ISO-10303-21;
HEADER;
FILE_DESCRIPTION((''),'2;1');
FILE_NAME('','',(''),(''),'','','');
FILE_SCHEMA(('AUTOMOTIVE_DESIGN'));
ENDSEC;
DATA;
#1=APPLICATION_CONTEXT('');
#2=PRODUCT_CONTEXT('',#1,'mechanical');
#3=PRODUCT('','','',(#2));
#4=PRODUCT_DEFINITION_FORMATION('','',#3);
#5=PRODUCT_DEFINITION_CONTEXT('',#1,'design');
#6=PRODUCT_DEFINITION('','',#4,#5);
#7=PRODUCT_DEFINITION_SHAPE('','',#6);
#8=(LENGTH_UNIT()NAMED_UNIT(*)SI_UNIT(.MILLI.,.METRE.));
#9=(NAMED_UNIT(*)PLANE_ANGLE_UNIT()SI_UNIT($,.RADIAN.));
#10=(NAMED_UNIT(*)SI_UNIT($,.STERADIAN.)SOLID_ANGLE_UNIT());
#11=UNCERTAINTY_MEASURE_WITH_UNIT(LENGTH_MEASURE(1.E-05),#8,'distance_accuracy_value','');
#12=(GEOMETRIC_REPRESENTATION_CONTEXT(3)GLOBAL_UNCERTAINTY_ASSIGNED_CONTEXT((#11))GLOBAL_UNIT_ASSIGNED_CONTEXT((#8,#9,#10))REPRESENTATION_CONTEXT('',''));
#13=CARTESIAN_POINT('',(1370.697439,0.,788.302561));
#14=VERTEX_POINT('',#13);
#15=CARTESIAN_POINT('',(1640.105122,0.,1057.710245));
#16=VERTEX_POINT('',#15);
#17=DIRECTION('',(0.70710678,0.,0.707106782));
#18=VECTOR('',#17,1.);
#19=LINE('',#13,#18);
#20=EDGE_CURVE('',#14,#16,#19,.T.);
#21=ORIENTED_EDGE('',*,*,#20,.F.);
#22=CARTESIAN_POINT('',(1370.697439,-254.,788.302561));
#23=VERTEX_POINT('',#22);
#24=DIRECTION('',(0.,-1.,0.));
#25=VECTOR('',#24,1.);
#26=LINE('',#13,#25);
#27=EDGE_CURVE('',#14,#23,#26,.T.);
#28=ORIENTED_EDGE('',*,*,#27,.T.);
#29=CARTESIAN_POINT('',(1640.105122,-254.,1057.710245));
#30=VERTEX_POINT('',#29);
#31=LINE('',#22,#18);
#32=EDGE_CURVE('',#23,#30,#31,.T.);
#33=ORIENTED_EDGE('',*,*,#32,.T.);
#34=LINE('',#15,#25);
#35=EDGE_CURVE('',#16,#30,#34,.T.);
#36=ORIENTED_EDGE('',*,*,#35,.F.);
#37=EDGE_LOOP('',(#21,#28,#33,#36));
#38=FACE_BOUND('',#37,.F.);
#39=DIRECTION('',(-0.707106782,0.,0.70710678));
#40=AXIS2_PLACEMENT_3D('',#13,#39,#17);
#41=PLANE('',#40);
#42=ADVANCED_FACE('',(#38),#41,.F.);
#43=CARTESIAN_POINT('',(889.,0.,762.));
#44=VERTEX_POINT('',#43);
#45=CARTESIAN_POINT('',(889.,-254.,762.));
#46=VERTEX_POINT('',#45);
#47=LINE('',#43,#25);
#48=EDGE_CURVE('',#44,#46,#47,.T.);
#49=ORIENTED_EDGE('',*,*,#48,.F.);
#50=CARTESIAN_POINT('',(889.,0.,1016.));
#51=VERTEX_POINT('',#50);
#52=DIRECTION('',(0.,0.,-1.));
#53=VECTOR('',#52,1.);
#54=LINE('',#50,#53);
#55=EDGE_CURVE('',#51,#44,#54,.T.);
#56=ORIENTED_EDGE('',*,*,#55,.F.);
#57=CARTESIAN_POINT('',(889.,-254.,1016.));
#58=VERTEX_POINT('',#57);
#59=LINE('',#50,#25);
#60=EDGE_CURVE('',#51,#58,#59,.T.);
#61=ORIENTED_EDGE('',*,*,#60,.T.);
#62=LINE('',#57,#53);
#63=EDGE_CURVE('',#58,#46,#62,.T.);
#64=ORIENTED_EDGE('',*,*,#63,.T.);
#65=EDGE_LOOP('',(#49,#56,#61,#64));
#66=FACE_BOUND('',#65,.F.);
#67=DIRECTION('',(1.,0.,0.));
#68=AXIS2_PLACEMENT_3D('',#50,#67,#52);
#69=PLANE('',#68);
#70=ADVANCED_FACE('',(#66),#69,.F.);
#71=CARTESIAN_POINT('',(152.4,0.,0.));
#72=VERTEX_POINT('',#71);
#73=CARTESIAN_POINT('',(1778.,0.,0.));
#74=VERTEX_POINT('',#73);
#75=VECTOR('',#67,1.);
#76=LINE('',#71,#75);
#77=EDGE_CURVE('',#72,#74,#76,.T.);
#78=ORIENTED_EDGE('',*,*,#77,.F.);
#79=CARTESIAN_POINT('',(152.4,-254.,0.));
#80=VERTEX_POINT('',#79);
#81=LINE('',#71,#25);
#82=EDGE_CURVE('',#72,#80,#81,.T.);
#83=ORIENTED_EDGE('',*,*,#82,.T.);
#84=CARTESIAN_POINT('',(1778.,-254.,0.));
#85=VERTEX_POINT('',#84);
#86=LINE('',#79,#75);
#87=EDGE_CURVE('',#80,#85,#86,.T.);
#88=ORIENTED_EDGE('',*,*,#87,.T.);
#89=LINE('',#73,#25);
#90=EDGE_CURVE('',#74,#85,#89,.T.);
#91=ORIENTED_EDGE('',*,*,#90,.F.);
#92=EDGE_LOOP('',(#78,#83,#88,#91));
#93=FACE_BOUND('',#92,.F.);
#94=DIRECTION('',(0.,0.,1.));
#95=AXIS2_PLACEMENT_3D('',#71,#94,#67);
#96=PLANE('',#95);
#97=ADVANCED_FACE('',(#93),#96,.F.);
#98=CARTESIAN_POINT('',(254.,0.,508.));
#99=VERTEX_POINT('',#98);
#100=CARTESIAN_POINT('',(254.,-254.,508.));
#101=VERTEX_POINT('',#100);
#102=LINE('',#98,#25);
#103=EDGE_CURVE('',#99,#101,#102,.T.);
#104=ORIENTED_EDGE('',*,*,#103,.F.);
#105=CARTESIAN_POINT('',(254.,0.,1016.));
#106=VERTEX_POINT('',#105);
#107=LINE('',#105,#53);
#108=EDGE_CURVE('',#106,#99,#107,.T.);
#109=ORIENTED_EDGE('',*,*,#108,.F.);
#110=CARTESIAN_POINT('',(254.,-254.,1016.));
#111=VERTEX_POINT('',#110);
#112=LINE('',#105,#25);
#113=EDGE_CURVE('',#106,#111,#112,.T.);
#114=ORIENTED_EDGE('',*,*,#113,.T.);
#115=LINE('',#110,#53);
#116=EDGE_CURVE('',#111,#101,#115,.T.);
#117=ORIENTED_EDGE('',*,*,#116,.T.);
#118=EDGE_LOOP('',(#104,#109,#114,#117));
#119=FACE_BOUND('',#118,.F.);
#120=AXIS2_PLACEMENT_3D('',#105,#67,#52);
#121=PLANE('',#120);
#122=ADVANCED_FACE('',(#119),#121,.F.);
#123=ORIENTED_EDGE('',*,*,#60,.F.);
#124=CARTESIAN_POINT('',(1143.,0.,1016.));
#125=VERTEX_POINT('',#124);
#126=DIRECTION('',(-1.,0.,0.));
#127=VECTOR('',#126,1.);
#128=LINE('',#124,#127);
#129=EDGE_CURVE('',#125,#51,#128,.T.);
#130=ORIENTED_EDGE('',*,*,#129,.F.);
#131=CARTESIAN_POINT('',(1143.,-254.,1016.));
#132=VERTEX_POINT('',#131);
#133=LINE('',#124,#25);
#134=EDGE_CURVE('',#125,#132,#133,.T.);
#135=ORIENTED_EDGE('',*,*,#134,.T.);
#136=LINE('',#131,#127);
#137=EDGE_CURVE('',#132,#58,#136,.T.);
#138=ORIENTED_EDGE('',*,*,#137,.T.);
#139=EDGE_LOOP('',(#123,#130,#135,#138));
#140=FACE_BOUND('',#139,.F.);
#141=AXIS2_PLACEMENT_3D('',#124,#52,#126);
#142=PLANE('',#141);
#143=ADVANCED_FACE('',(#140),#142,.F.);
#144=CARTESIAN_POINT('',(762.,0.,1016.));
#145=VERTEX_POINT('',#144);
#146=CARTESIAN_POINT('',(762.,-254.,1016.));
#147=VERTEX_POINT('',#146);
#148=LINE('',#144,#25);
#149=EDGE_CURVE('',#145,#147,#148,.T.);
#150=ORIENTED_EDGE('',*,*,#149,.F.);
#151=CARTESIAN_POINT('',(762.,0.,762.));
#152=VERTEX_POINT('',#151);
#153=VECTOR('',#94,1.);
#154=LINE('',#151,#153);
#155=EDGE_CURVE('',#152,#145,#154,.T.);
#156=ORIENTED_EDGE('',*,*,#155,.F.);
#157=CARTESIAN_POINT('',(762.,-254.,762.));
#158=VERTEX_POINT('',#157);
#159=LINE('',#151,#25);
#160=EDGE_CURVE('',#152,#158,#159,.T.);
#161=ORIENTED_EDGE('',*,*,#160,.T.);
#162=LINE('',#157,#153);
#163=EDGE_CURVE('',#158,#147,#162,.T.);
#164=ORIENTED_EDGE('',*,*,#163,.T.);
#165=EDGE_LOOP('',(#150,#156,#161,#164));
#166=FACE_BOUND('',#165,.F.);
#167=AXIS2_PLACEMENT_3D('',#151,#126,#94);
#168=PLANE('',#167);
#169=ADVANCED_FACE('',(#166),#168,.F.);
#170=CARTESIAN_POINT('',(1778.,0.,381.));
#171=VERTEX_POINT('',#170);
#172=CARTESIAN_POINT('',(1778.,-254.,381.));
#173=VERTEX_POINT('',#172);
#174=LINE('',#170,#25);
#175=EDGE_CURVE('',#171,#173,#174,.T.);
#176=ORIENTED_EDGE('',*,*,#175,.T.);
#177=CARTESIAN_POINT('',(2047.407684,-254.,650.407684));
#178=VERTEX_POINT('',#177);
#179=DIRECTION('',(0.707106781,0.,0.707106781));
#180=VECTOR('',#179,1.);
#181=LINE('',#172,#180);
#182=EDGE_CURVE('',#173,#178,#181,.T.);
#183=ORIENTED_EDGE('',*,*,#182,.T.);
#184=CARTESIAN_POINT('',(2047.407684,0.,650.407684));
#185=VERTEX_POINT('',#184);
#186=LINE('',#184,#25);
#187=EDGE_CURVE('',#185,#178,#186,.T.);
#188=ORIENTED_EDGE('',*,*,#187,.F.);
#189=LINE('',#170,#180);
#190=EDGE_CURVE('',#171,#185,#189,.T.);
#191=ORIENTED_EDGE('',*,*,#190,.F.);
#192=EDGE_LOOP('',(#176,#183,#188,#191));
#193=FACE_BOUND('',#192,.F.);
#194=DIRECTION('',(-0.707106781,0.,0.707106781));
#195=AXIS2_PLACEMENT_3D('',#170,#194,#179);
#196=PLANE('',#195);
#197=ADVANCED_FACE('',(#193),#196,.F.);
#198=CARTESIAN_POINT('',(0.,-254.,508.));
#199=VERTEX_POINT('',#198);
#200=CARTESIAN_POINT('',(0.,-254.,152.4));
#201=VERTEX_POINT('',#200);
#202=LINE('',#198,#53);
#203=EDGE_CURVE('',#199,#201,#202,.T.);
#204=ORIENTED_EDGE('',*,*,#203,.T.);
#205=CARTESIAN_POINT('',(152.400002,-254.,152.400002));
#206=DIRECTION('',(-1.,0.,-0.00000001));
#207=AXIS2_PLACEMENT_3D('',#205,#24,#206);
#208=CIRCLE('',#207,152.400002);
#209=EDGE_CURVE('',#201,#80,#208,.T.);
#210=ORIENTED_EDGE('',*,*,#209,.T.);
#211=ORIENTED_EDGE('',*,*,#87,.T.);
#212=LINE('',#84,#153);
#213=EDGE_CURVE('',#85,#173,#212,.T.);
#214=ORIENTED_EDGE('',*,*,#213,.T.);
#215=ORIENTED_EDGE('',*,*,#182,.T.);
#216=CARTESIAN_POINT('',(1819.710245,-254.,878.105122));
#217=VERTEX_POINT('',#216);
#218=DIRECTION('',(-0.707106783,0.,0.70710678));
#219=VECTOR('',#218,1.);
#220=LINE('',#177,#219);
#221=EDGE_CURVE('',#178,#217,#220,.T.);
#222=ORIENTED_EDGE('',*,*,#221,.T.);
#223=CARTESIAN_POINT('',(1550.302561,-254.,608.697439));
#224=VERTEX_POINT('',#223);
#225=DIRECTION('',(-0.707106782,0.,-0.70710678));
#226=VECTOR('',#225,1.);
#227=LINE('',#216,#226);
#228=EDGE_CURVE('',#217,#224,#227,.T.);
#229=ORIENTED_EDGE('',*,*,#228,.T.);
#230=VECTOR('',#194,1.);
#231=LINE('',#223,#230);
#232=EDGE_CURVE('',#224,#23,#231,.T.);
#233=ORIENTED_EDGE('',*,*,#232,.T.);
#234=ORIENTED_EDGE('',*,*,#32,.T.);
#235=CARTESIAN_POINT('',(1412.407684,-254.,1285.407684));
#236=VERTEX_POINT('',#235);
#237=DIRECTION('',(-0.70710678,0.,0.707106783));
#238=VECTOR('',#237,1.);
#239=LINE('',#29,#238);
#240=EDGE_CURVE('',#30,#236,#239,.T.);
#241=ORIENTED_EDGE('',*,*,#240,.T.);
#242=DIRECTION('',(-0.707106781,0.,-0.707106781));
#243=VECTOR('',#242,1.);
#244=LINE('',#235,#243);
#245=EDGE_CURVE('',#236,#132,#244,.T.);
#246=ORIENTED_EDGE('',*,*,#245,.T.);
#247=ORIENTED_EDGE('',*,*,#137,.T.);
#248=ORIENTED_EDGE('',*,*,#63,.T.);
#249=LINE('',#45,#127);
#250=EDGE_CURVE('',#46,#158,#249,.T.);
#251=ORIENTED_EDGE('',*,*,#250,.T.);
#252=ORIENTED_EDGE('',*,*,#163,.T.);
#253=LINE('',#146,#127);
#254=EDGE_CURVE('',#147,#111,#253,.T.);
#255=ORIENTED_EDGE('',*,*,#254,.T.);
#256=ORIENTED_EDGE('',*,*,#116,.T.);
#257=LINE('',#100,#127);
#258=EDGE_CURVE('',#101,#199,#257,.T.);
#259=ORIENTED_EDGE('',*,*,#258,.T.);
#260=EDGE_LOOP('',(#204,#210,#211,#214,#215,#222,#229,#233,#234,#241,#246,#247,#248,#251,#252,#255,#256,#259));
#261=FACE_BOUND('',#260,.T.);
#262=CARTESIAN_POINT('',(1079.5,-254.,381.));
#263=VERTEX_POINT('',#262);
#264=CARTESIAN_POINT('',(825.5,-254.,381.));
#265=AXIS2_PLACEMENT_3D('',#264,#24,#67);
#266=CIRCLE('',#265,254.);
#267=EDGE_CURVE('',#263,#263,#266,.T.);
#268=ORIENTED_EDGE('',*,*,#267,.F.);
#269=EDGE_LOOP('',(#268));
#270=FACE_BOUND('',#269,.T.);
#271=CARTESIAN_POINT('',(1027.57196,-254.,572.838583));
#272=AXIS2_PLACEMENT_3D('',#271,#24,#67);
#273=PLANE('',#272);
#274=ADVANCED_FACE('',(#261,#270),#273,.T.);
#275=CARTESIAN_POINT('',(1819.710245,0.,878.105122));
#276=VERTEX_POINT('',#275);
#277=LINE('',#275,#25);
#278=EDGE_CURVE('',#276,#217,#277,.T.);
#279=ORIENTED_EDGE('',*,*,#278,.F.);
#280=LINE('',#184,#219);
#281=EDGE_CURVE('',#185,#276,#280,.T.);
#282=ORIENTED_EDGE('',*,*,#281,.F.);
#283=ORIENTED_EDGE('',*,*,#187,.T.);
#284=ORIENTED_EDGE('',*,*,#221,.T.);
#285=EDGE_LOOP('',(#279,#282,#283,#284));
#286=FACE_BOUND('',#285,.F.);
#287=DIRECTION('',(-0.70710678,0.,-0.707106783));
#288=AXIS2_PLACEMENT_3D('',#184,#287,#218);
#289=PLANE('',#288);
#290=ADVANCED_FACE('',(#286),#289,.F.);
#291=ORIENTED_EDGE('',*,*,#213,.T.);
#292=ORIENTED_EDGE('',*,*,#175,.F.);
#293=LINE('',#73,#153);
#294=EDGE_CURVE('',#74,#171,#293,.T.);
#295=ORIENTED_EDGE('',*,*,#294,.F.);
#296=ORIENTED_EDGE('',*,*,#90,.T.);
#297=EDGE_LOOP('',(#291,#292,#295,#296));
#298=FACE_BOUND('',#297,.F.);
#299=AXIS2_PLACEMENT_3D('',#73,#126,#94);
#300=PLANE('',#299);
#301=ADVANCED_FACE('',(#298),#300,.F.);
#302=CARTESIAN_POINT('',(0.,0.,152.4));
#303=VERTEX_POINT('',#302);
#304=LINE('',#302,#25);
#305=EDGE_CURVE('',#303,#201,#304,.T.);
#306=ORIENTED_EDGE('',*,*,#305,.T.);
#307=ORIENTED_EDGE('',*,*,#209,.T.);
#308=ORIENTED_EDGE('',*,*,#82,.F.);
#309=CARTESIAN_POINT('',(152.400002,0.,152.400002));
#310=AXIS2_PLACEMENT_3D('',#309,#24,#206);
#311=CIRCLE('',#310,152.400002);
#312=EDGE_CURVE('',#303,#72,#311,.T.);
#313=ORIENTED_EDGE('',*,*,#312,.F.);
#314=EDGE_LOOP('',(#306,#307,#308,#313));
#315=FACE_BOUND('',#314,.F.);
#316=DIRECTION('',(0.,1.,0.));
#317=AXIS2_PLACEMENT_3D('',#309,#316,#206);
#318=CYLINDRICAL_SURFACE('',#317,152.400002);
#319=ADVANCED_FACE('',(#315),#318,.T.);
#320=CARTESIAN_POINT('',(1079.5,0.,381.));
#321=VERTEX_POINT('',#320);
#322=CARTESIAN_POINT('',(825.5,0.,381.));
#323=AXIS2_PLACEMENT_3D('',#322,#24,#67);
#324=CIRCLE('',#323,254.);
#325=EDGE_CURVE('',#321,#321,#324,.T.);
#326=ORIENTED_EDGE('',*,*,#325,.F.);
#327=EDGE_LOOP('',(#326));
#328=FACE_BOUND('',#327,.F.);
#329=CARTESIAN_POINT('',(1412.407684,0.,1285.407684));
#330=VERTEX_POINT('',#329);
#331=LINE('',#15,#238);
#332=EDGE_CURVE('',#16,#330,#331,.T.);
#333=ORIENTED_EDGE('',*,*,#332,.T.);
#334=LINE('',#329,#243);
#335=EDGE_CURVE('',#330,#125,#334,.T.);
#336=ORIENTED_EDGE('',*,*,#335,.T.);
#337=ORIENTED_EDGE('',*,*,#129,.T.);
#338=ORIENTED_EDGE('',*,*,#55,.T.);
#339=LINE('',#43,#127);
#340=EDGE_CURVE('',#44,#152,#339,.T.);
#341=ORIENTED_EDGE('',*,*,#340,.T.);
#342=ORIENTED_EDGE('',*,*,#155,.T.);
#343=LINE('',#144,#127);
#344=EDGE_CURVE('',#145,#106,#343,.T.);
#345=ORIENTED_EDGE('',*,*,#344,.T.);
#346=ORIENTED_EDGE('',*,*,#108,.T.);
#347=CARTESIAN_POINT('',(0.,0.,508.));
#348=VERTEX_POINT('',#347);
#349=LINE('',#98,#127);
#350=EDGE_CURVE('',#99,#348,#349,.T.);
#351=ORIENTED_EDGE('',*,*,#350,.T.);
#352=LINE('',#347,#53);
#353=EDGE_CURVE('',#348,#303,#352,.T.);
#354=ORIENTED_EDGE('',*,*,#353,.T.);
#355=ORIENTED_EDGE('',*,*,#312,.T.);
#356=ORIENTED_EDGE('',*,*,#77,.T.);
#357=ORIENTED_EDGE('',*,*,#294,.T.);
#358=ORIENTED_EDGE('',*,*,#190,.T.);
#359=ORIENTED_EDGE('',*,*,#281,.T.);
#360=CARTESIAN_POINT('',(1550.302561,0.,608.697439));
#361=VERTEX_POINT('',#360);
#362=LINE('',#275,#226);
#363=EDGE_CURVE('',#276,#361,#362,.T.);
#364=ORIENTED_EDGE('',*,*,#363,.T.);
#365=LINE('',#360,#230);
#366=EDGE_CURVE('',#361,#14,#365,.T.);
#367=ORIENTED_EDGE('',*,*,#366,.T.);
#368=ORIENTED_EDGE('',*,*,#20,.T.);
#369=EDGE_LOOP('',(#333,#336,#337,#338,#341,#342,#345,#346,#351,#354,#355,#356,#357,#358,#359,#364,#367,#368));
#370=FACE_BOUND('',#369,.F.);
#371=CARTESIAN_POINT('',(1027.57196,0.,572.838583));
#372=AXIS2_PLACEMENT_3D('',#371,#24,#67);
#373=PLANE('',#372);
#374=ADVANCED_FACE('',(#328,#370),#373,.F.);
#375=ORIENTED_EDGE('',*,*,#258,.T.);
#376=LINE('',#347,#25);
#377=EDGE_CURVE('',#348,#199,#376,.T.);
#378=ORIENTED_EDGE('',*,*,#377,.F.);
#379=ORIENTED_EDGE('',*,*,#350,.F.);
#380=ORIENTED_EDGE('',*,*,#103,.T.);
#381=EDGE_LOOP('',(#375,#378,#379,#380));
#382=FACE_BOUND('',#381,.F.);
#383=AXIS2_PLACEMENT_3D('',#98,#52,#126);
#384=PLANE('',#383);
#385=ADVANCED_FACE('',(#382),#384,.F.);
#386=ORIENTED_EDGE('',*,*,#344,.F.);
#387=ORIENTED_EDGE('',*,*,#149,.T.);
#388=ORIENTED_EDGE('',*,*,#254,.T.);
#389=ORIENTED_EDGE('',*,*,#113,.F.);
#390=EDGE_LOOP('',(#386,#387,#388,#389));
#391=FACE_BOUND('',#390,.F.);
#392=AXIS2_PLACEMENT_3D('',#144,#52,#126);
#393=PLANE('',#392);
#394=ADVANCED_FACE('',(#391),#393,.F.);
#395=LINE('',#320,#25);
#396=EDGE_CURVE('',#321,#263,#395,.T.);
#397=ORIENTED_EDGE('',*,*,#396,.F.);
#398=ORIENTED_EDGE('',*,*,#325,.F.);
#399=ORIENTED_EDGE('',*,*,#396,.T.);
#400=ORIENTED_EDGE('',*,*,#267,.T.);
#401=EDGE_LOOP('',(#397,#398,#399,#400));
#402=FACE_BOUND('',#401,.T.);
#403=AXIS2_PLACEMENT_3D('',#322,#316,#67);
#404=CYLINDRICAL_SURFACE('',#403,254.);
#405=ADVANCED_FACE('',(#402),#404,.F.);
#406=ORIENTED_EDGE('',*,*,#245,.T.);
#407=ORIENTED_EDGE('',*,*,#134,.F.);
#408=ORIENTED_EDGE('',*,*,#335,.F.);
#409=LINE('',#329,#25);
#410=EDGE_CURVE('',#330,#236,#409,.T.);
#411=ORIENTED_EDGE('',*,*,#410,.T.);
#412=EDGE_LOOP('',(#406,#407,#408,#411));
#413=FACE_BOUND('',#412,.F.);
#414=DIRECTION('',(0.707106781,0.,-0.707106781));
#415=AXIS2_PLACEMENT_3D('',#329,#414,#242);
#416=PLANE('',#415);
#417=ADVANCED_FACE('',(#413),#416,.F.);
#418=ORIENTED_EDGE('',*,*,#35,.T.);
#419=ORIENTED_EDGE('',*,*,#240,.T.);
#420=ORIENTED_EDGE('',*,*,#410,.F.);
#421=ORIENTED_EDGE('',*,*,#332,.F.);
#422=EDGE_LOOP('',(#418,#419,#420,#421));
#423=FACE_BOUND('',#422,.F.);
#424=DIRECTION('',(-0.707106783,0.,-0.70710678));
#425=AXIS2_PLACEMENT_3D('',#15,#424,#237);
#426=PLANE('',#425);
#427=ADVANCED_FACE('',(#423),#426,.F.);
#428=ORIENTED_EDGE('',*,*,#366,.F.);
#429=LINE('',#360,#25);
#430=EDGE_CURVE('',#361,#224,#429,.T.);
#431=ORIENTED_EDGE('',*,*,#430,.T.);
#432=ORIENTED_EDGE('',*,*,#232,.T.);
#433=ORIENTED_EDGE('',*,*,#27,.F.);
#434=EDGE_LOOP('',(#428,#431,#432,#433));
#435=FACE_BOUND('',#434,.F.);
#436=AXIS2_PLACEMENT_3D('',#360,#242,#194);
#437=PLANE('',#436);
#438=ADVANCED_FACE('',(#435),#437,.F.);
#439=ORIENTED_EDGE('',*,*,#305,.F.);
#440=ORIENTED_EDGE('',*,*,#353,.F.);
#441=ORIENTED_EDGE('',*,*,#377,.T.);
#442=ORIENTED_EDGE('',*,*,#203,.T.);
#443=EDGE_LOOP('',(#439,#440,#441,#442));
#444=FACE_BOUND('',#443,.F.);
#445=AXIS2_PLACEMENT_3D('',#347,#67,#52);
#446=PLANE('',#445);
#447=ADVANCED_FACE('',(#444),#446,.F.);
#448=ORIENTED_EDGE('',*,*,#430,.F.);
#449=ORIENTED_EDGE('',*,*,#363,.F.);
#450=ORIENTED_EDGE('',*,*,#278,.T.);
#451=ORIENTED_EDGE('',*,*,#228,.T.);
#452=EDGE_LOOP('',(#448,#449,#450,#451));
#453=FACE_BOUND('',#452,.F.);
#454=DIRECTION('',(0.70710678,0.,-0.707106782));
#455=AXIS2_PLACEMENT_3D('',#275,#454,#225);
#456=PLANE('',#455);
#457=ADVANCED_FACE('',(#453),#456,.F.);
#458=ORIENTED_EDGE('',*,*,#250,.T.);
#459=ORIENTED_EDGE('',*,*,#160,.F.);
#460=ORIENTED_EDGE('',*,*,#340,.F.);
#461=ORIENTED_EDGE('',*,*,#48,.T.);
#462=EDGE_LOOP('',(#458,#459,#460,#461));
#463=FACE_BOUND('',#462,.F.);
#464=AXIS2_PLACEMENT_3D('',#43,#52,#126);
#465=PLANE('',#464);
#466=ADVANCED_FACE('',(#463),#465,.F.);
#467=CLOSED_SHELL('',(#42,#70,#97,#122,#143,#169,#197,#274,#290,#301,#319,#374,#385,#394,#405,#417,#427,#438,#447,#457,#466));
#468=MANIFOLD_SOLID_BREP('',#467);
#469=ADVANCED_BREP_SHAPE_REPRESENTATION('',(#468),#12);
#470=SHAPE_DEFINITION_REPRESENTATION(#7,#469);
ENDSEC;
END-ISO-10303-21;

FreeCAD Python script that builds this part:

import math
import FreeCAD as App
import Part
import Sketcher

V = App.Vector
Q = App.Units.Quantity

doc = App.newDocument("Part")
body = doc.addObject("PartDesign::Body", "Body")

# Sketch on XZ plane
sketch1 = doc.addObject("Sketcher::SketchObject", "Sketch")
body.addObject(sketch1)
sketch1.AttachmentSupport = (doc.XZ_Plane, [""])
sketch1.MapMode = "FlatFace"
sketch1.addGeometry([
    Part.ArcOfCircle(Part.Circle(V(152.400002, 152.400002, 0), V(0, 0, 1), 152.400002), math.radians(-179.999999), math.radians(-90.000001)),  # 0
    Part.LineSegment(V(152.4, 0, 0), V(1778, 0, 0)),  # 1
    Part.LineSegment(V(1778, 0, 0), V(1778, 381, 0)),  # 2
    Part.LineSegment(V(1778, 381, 0), V(2047.407684, 650.407684, 0)),  # 3
    Part.LineSegment(V(2047.407684, 650.407684, 0), V(1819.710245, 878.105122, 0)),  # 4
    Part.LineSegment(V(1819.710245, 878.105122, 0), V(1550.302561, 608.697439, 0)),  # 5
    Part.LineSegment(V(1550.302561, 608.697439, 0), V(1370.697439, 788.302561, 0)),  # 6
    Part.LineSegment(V(1370.697439, 788.302561, 0), V(1640.105122, 1057.710245, 0)),  # 7
    Part.LineSegment(V(1640.105122, 1057.710245, 0), V(1412.407684, 1285.407684, 0)),  # 8
    Part.LineSegment(V(1412.407684, 1285.407684, 0), V(1143, 1016, 0)),  # 9
    Part.LineSegment(V(1143, 1016, 0), V(889, 1016, 0)),  # 10
    Part.LineSegment(V(889, 1016, 0), V(889, 762, 0)),  # 11
    Part.LineSegment(V(889, 762, 0), V(762, 762, 0)),  # 12
    Part.LineSegment(V(762, 762, 0), V(762, 1016, 0)),  # 13
    Part.LineSegment(V(762, 1016, 0), V(254, 1016, 0)),  # 14
    Part.LineSegment(V(254, 1016, 0), V(254, 508, 0)),  # 15
    Part.LineSegment(V(254, 508, 0), V(0, 508, 0)),  # 16
    Part.LineSegment(V(0, 508, 0), V(0, 152.4, 0)),  # 17
    Part.Circle(V(825.5, 381, 0), V(0, 0, 1), 254),  # 18
], False)
sketch1.addConstraint([
    Sketcher.Constraint("Tangent", 0, 2, 1, 1),
    Sketcher.Constraint("Coincident", 1, 2, 2, 1),
    Sketcher.Constraint("Coincident", 2, 2, 3, 1),
    Sketcher.Constraint("Coincident", 3, 2, 4, 1),
    Sketcher.Constraint("Coincident", 4, 2, 5, 1),
    Sketcher.Constraint("Coincident", 5, 2, 6, 1),
    Sketcher.Constraint("Coincident", 6, 2, 7, 1),
    Sketcher.Constraint("Coincident", 7, 2, 8, 1),
    Sketcher.Constraint("Coincident", 8, 2, 9, 1),
    Sketcher.Constraint("Coincident", 9, 2, 10, 1),
    Sketcher.Constraint("Coincident", 10, 2, 11, 1),
    Sketcher.Constraint("Coincident", 11, 2, 12, 1),
    Sketcher.Constraint("Coincident", 12, 2, 13, 1),
    Sketcher.Constraint("Coincident", 13, 2, 14, 1),
    Sketcher.Constraint("Coincident", 14, 2, 15, 1),
    Sketcher.Constraint("Coincident", 15, 2, 16, 1),
    Sketcher.Constraint("Coincident", 16, 2, 17, 1),
    Sketcher.Constraint("Tangent", 17, 2, 0, 1),
    Sketcher.Constraint("Horizontal", 1),
    Sketcher.Constraint("Vertical", 2),
    Sketcher.Constraint("Horizontal", 10),
    Sketcher.Constraint("Vertical", 11),
    Sketcher.Constraint("Horizontal", 12),
    Sketcher.Constraint("Vertical", 13),
    Sketcher.Constraint("Horizontal", 14),
    Sketcher.Constraint("Vertical", 15),
    Sketcher.Constraint("Horizontal", 16),
    Sketcher.Constraint("Vertical", 17),
    Sketcher.Constraint("PointOnObject", 0, 2, -1),
    Sketcher.Constraint("PointOnObject", 16, 2, -2),
    Sketcher.Constraint("Perpendicular", 3, 4),
    Sketcher.Constraint("Perpendicular", 4, 5),
    Sketcher.Constraint("Perpendicular", 5, 6),
    Sketcher.Constraint("Perpendicular", 6, 7),
    Sketcher.Constraint("Perpendicular", 7, 8),
    Sketcher.Constraint("Perpendicular", 8, 9),
    Sketcher.Constraint("Horizontal", 18, 3, 2, 2),
    Sketcher.Constraint("Horizontal", 10, 2, 13, 2),
    Sketcher.Constraint("Equal", 10, 16),
    Sketcher.Constraint("Equal", 16, 11),
    Sketcher.Constraint("Equal", 14, 15),
    Sketcher.Constraint("Equal", 3, 5),
    Sketcher.Constraint("Equal", 5, 7),
    Sketcher.Constraint("Equal", 4, 8),
    Sketcher.Constraint("Equal", 7, 9),
    Sketcher.Constraint("Diameter", 18, Q("20 in")),
    Sketcher.Constraint("Radius", 0, Q("6.0000001 in")),
    Sketcher.Constraint("DistanceX", 1, 1, 1, 2, Q("64 in")),
    Sketcher.Constraint("DistanceX", 10, 2, 10, 1, Q("10 in")),
    Sketcher.Constraint("DistanceX", 12, 2, 12, 1, Q("5 in")),
    Sketcher.Constraint("DistanceX", 14, 2, 14, 1, Q("20 in")),
    Sketcher.Constraint("DistanceY", 2, 1, 2, 2, Q("15 in")),
    Sketcher.Constraint("DistanceY", 17, 2, 17, 1, Q("14 in")),
    Sketcher.Constraint("Distance", 3, Q("15 in")),
    Sketcher.Constraint("Distance", 6, Q("10 in")),
    Sketcher.Constraint("DistanceX", -1, 1, 18, 3, Q("32.5 in")),
])
pad1 = doc.addObject("PartDesign::Pad", "Pad")
body.addObject(pad1)
pad1.Profile = sketch1
pad1.Length = Q("10 in")

doc.recompute()
